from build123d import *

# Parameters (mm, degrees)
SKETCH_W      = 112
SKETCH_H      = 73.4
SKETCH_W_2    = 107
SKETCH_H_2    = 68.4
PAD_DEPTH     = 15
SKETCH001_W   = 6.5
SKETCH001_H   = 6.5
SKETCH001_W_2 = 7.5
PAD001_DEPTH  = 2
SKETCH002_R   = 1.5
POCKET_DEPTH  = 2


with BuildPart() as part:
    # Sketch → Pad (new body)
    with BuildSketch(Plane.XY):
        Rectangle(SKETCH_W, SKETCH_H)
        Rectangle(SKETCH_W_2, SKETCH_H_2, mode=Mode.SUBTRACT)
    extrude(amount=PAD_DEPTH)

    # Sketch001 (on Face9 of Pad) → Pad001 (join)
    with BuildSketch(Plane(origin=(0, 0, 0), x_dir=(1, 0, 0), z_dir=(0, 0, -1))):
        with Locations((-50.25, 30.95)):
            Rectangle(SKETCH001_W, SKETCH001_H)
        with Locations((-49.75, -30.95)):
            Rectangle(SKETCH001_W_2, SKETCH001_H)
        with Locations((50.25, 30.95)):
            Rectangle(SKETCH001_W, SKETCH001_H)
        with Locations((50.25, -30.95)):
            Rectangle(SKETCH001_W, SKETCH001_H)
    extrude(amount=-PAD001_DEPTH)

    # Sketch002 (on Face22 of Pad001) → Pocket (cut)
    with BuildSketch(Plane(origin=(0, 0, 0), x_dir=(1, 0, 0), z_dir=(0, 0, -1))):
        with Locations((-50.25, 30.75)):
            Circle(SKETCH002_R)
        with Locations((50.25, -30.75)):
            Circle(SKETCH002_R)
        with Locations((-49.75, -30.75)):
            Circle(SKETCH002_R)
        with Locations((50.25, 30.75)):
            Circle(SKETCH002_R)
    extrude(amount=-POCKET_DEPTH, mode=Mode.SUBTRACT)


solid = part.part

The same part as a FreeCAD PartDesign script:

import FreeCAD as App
import Part
import Sketcher
from FreeCAD import Vector


def add_polygon(sketch, points):
    """Adds a closed chain of lines whose ends are joined by coincident constraints."""
    first, n = sketch.GeometryCount, len(points)
    for a, b in zip(points, points[1:] + points[:1]):
        sketch.addGeometry(Part.LineSegment(App.Vector(*a, 0), App.Vector(*b, 0)), False)
    for i in range(n):
        sketch.addConstraint(Sketcher.Constraint("Coincident", first + i, 2, first + (i + 1) % n, 1))

doc = App.newDocument("Part")
body = doc.addObject("PartDesign::Body", "Body")

# Sketch on XY plane
sketch1 = doc.addObject("Sketcher::SketchObject", "Sketch")
body.addObject(sketch1)
sketch1.AttachmentSupport = (doc.XY_Plane, [""])
sketch1.MapMode = "FlatFace"
add_polygon(sketch1, [(-56, 37), (-56, -37), (56, -37), (56, 37)])  # lines 0-3
add_polygon(sketch1, [(54, -34), (-54, -34), (-54, 34), (54, 34)])  # lines 4-7
sketch1.addConstraint([
    Sketcher.Constraint("Vertical", 0),
    Sketcher.Constraint("Horizontal", 1),
    Sketcher.Constraint("Vertical", 2),
    Sketcher.Constraint("Horizontal", 3),
    Sketcher.Constraint("Horizontal", 4),
    Sketcher.Constraint("Vertical", 5),
    Sketcher.Constraint("Horizontal", 6),
    Sketcher.Constraint("Vertical", 7),
    Sketcher.Constraint("Symmetric", 0, 2, 2, 2, -1, 1),
    Sketcher.Constraint("Symmetric", 4, 2, 6, 2, -1, 1),
    Sketcher.Constraint("DistanceX", 1, 1, 1, 2, 112.0),
    Sketcher.Constraint("DistanceX", 4, 2, 4, 1, 107.0),
    Sketcher.Constraint("DistanceY", 0, 2, 0, 1, 73.4),
    Sketcher.Constraint("DistanceY", 5, 1, 5, 2, 68.4),
])
pad1 = doc.addObject("PartDesign::Pad", "Pad")
body.addObject(pad1)
pad1.Profile = sketch1
pad1.Length = 15

# Sketch on XY plane
sketch2 = doc.addObject("Sketcher::SketchObject", "Sketch001")
body.addObject(sketch2)
sketch2.AttachmentSupport = (doc.XY_Plane, [""])
sketch2.MapMode = "FlatFace"
add_polygon(sketch2, [(-54, -34), (-54, -28), (-47, -28), (-47, -34)])  # lines 0-3
add_polygon(sketch2, [(-54, 28), (-54, 34), (-46, 34), (-46, 28)])  # lines 4-7
add_polygon(sketch2, [(47, -34), (47, -28), (54, -28), (54, -34)])  # lines 8-11
add_polygon(sketch2, [(47, 28), (47, 34), (54, 34), (54, 28)])  # lines 12-15
sketch2.addConstraint([
    Sketcher.Constraint("Vertical", 0),
    Sketcher.Constraint("Horizontal", 1),
    Sketcher.Constraint("Vertical", 2),
    Sketcher.Constraint("Horizontal", 3),
    Sketcher.Constraint("Vertical", 4),
    Sketcher.Constraint("Horizontal", 5),
    Sketcher.Constraint("Vertical", 6),
    Sketcher.Constraint("Horizontal", 7),
    Sketcher.Constraint("Vertical", 8),
    Sketcher.Constraint("Horizontal", 9),
    Sketcher.Constraint("Vertical", 10),
    Sketcher.Constraint("Horizontal", 11),
    Sketcher.Constraint("Vertical", 12),
    Sketcher.Constraint("Horizontal", 13),
    Sketcher.Constraint("Vertical", 14),
    Sketcher.Constraint("Horizontal", 15),
    Sketcher.Constraint("Symmetric", 7, 2, 9, 2, -1, 1),
    Sketcher.Constraint("Symmetric", 2, 2, 12, 2, -1, 1),
    Sketcher.Constraint("Symmetric", 0, 2, 14, 2, -1, 1),
    Sketcher.Constraint("Symmetric", 1, 2, 8, 2, -2),
    Sketcher.Constraint("Symmetric", 3, 2, 10, 2, -2),
    Sketcher.Constraint("Horizontal", 5, 2, 12, 2),
    Sketcher.Constraint("Equal", 15, 0),
    Sketcher.Constraint("DistanceX", 1, 1, 1, 2, 6.5),
    Sketcher.Constraint("DistanceX", 5, 1, 5, 2, 7.5),
    Sketcher.Constraint("DistanceX", 1, 2, -1, 1, 47.0),
    Sketcher.Constraint("DistanceY", 0, 2, -1, 1, 27.7),
])
pad2 = doc.addObject("PartDesign::Pad", "Pad001")
body.addObject(pad2)
pad2.Profile = sketch2
pad2.Length = 2

# Sketch on XY plane
sketch3 = doc.addObject("Sketcher::SketchObject", "Sketch002")
body.addObject(sketch3)
sketch3.AttachmentSupport = (doc.XY_Plane, [""])
sketch3.MapMode = "FlatFace"
sketch3.addGeometry([
    Part.Circle(Vector(-50.2, -30.8, 0), Vector(0, 0, 1), 1.5),
    Part.Circle(Vector(50.2, 30.8, 0), Vector(0, 0, 1), 1.5),
    Part.Circle(Vector(-49.8, 30.8, 0), Vector(0, 0, 1), 1.5),
    Part.Circle(Vector(50.2, -30.8, 0), Vector(0, 0, 1), 1.5),
], False)
sketch3.addConstraint([
    Sketcher.Constraint("Equal", 0, 1),
    Sketcher.Constraint("Equal", 1, 2),
    Sketcher.Constraint("Equal", 2, 3),
    Sketcher.Constraint("Symmetric", 0, 3, 1, 3, -1, 1),
    Sketcher.Constraint("Symmetric", 0, 3, 3, 3, -2),
    Sketcher.Constraint("Horizontal", 1, 3, 2, 3),
    Sketcher.Constraint("Diameter", 0, 3.0),
    Sketcher.Constraint("DistanceX", 2, 3, 1, 3, 100.0),
    Sketcher.Constraint("DistanceX", 0, 3, 1, 3, 100.5),
    Sketcher.Constraint("DistanceY", 0, 3, 1, 3, 61.5),
])
pocket1 = doc.addObject("PartDesign::Pocket", "Pocket")
body.addObject(pocket1)
pocket1.Profile = sketch3
pocket1.Length = 2
pocket1.Reversed = True

doc.recompute()
